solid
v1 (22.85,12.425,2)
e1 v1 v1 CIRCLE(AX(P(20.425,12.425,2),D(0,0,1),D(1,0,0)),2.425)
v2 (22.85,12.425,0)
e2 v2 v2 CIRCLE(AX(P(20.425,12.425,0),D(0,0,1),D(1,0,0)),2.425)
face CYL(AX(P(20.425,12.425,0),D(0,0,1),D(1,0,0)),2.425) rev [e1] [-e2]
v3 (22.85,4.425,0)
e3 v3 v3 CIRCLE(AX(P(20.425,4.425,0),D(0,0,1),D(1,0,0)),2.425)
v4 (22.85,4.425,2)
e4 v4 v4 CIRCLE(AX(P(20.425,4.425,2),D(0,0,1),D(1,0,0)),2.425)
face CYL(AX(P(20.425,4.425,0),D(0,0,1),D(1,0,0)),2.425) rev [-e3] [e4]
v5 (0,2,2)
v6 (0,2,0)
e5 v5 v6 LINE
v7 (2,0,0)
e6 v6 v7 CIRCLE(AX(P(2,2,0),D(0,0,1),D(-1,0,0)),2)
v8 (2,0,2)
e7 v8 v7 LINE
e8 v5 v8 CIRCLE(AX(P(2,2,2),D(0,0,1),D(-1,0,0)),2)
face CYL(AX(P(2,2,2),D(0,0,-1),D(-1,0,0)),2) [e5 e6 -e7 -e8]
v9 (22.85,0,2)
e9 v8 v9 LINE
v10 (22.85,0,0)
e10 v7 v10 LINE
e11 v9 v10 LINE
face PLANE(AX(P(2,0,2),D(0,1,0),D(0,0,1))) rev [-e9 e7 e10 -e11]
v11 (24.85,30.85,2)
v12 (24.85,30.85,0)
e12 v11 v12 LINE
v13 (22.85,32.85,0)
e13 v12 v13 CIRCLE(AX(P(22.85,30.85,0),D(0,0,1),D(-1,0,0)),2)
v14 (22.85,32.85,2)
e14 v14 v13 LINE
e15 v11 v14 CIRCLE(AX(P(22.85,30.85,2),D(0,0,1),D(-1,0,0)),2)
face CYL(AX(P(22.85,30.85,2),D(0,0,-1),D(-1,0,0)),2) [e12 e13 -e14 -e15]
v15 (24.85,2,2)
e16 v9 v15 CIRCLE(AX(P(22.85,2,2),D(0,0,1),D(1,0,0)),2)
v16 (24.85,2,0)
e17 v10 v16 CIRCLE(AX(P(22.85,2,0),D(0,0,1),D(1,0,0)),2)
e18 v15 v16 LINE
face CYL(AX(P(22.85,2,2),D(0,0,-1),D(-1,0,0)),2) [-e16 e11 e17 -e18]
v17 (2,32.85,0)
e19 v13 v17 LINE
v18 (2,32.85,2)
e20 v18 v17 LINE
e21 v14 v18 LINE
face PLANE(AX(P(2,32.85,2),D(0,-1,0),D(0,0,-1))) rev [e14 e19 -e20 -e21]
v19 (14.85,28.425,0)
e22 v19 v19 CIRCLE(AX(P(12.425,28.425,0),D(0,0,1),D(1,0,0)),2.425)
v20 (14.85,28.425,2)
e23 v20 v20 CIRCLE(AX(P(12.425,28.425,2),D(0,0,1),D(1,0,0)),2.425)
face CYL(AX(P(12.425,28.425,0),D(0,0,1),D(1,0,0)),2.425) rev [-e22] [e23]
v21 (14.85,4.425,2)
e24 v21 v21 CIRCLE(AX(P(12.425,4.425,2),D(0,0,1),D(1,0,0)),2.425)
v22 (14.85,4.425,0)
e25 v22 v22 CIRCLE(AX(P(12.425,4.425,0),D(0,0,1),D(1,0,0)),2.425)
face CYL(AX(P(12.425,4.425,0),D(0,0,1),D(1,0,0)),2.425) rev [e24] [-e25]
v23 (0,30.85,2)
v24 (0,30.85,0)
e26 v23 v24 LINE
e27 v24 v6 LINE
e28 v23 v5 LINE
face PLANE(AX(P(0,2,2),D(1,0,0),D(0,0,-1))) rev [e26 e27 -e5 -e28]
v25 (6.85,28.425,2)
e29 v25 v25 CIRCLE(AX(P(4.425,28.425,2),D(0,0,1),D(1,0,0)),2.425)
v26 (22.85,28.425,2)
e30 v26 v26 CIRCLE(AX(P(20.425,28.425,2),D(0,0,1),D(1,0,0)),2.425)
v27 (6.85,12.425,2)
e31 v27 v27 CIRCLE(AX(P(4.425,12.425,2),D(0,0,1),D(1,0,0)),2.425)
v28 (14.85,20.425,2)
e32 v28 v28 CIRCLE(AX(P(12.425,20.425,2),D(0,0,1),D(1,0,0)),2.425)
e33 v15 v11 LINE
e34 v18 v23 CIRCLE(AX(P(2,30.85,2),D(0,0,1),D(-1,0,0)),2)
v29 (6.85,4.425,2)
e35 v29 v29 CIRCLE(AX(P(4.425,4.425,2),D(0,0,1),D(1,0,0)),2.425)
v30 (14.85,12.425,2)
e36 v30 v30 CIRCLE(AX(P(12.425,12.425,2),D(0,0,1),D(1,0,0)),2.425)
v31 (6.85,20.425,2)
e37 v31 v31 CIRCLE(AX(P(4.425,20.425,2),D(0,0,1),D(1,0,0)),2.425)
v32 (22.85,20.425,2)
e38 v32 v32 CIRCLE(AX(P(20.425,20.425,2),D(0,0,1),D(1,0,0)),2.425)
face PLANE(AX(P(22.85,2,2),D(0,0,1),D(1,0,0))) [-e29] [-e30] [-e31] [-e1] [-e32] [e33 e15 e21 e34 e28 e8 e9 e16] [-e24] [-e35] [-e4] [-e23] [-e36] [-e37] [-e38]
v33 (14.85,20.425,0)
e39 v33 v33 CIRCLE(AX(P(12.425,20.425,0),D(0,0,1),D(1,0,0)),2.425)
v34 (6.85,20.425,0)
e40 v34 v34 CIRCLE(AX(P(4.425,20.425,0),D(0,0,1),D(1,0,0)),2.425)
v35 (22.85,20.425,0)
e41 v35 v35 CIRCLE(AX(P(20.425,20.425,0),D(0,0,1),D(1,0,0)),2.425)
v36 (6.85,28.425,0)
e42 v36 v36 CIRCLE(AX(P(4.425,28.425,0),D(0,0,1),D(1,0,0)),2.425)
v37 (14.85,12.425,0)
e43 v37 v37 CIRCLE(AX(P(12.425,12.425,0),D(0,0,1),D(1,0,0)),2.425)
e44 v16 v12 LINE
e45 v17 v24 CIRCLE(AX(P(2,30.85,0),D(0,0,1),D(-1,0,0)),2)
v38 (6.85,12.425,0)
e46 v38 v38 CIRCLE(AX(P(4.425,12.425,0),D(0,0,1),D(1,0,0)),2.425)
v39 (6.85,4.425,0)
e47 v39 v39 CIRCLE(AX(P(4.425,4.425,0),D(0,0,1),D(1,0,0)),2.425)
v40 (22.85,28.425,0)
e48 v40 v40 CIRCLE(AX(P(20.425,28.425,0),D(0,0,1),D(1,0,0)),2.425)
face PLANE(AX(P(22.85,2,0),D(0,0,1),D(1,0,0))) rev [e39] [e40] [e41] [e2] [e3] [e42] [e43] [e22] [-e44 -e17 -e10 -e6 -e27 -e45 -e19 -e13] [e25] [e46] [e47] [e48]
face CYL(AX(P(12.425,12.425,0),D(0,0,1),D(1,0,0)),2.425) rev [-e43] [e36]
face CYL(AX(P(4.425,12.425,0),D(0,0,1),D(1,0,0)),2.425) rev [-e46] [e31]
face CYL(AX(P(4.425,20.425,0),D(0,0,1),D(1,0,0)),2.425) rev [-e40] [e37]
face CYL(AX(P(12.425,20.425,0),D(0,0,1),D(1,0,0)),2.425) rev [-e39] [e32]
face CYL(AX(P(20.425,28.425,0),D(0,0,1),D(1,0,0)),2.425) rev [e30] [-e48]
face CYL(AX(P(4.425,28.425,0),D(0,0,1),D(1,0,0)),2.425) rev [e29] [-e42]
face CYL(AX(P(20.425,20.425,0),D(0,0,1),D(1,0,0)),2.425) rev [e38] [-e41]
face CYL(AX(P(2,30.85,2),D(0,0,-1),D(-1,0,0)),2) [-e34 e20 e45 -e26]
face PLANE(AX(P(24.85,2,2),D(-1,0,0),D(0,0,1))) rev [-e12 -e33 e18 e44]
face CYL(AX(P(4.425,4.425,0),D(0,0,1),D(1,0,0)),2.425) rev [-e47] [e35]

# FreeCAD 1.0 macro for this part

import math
import FreeCAD as App
import Part
import Sketcher

V = App.Vector

doc = App.newDocument("Part")
body = doc.addObject("PartDesign::Body", "Body")

sketch1 = doc.addObject("Sketcher::SketchObject", "Sketch")
body.addObject(sketch1)
sketch1.AttachmentSupport = (doc.XY_Plane, [""])
sketch1.MapMode = "FlatFace"
sketch1.addGeometry(Part.LineSegment(V(2, 0, 0), V(22.85, 0, 0)), False)
sketch1.addGeometry(Part.ArcOfCircle(Part.Circle(V(22.85, 2, 0), V(0, 0, 1), 2), math.radians(-90), math.radians(0)), False)
sketch1.addGeometry(Part.LineSegment(V(24.85, 2, 0), V(24.85, 30.85, 0)), False)
sketch1.addGeometry(Part.ArcOfCircle(Part.Circle(V(22.85, 30.85, 0), V(0, 0, 1), 2), math.radians(0), math.radians(90)), False)
sketch1.addGeometry(Part.LineSegment(V(22.85, 32.85, 0), V(2, 32.85, 0)), False)
sketch1.addGeometry(Part.ArcOfCircle(Part.Circle(V(2, 30.85, 0), V(0, 0, 1), 2), math.radians(90), math.radians(180)), False)
sketch1.addGeometry(Part.LineSegment(V(0, 30.85, 0), V(0, 2, 0)), False)
sketch1.addGeometry(Part.ArcOfCircle(Part.Circle(V(2, 2, 0), V(0, 0, 1), 2), math.radians(-180), math.radians(-90)), False)
sketch1.addConstraint(Sketcher.Constraint("Tangent", 0, 2, 1, 1))
sketch1.addConstraint(Sketcher.Constraint("Tangent", 1, 2, 2, 1))
sketch1.addConstraint(Sketcher.Constraint("Tangent", 2, 2, 3, 1))
sketch1.addConstraint(Sketcher.Constraint("Tangent", 3, 2, 4, 1))
sketch1.addConstraint(Sketcher.Constraint("Tangent", 4, 2, 5, 1))
sketch1.addConstraint(Sketcher.Constraint("Tangent", 5, 2, 6, 1))
sketch1.addConstraint(Sketcher.Constraint("Tangent", 6, 2, 7, 1))
sketch1.addConstraint(Sketcher.Constraint("Tangent", 7, 2, 0, 1))
sketch1.addConstraint(Sketcher.Constraint("Horizontal", 0))
sketch1.addConstraint(Sketcher.Constraint("Vertical", 2))
sketch1.addConstraint(Sketcher.Constraint("Horizontal", 4))
sketch1.addConstraint(Sketcher.Constraint("Vertical", 6))
sketch1.addConstraint(Sketcher.Constraint("Equal", 1, 3))
sketch1.addConstraint(Sketcher.Constraint("Equal", 3, 5))
sketch1.addConstraint(Sketcher.Constraint("Equal", 5, 7))
sketch1.addConstraint(Sketcher.Constraint("PointOnObject", 0, 2, -1))
sketch1.addConstraint(Sketcher.Constraint("PointOnObject", 5, 2, -2))
sketch1.addConstraint(Sketcher.Constraint("Radius", 1, 2.0))
sketch1.addConstraint(Sketcher.Constraint("DistanceX", 0, 1, 0, 2, 20.85))
sketch1.addConstraint(Sketcher.Constraint("DistanceY", 2, 1, 2, 2, 28.85))
pad1 = doc.addObject("PartDesign::Pad", "Pad")
body.addObject(pad1)
pad1.Profile = sketch1
pad1.Length = 2

sketch2 = doc.addObject("Sketcher::SketchObject", "Sketch001")
body.addObject(sketch2)
sketch2.AttachmentSupport = (doc.XY_Plane, [""])
sketch2.MapMode = "FlatFace"
sketch2.AttachmentOffset = App.Placement(V(0, 0, 2), App.Rotation())
sketch2.addGeometry(Part.Circle(V(4.425, 4.425, 0), V(0, 0, 1), 2.425), False)
sketch2.addGeometry(Part.Circle(V(12.425, 4.425, 0), V(0, 0, 1), 2.425), False)
sketch2.addGeometry(Part.Circle(V(20.425, 4.425, 0), V(0, 0, 1), 2.425), False)
sketch2.addGeometry(Part.Circle(V(4.425, 12.425, 0), V(0, 0, 1), 2.425), False)
sketch2.addGeometry(Part.Circle(V(12.425, 12.425, 0), V(0, 0, 1), 2.425), False)
sketch2.addGeometry(Part.Circle(V(20.425, 12.425, 0), V(0, 0, 1), 2.425), False)
sketch2.addGeometry(Part.Circle(V(4.425, 20.425, 0), V(0, 0, 1), 2.425), False)
sketch2.addGeometry(Part.Circle(V(12.425, 20.425, 0), V(0, 0, 1), 2.425), False)
sketch2.addGeometry(Part.Circle(V(20.425, 20.425, 0), V(0, 0, 1), 2.425), False)
sketch2.addGeometry(Part.Circle(V(4.425, 28.425, 0), V(0, 0, 1), 2.425), False)
sketch2.addGeometry(Part.Circle(V(12.425, 28.425, 0), V(0, 0, 1), 2.425), False)
sketch2.addGeometry(Part.Circle(V(20.425, 28.425, 0), V(0, 0, 1), 2.425), False)
sketch2.addConstraint(Sketcher.Constraint("Equal", 0, 1))
sketch2.addConstraint(Sketcher.Constraint("Equal", 1, 2))
sketch2.addConstraint(Sketcher.Constraint("Equal", 2, 3))
sketch2.addConstraint(Sketcher.Constraint("Equal", 3, 4))
sketch2.addConstraint(Sketcher.Constraint("Equal", 4, 5))
sketch2.addConstraint(Sketcher.Constraint("Equal", 5, 6))
sketch2.addConstraint(Sketcher.Constraint("Equal", 6, 7))
sketch2.addConstraint(Sketcher.Constraint("Equal", 7, 8))
sketch2.addConstraint(Sketcher.Constraint("Equal", 8, 9))
sketch2.addConstraint(Sketcher.Constraint("Equal", 9, 10))
sketch2.addConstraint(Sketcher.Constraint("Equal", 10, 11))
sketch2.addConstraint(Sketcher.Constraint("Horizontal", 0, 3, 1, 3))
sketch2.addConstraint(Sketcher.Constraint("Horizontal", 1, 3, 2, 3))
sketch2.addConstraint(Sketcher.Constraint("Horizontal", 3, 3, 4, 3))
sketch2.addConstraint(Sketcher.Constraint("Horizontal", 4, 3, 5, 3))
sketch2.addConstraint(Sketcher.Constraint("Horizontal", 6, 3, 7, 3))
sketch2.addConstraint(Sketcher.Constraint("Horizontal", 7, 3, 8, 3))
sketch2.addConstraint(Sketcher.Constraint("Horizontal", 9, 3, 10, 3))
sketch2.addConstraint(Sketcher.Constraint("Horizontal", 10, 3, 11, 3))
sketch2.addConstraint(Sketcher.Constraint("Vertical", 0, 3, 3, 3))
sketch2.addConstraint(Sketcher.Constraint("Vertical", 1, 3, 4, 3))
sketch2.addConstraint(Sketcher.Constraint("Vertical", 2, 3, 5, 3))
sketch2.addConstraint(Sketcher.Constraint("Vertical", 3, 3, 6, 3))
sketch2.addConstraint(Sketcher.Constraint("Vertical", 4, 3, 7, 3))
sketch2.addConstraint(Sketcher.Constraint("Vertical", 5, 3, 8, 3))
sketch2.addConstraint(Sketcher.Constraint("Vertical", 6, 3, 9, 3))
sketch2.addConstraint(Sketcher.Constraint("Vertical", 7, 3, 10, 3))
sketch2.addConstraint(Sketcher.Constraint("Vertical", 8, 3, 11, 3))
sketch2.addConstraint(Sketcher.Constraint("Diameter", 0, 4.85))
sketch2.addConstraint(Sketcher.Constraint("DistanceX", 0, 3, 1, 3, 8.0))
sketch2.addConstraint(Sketcher.Constraint("DistanceX", 1, 3, 2, 3, 8.0))
sketch2.addConstraint(Sketcher.Constraint("DistanceY", 0, 3, 3, 3, 8.0))
sketch2.addConstraint(Sketcher.Constraint("DistanceY", 3, 3, 6, 3, 8.0))
sketch2.addConstraint(Sketcher.Constraint("DistanceY", 6, 3, 9, 3, 8.0))
sketch2.addConstraint(Sketcher.Constraint("DistanceX", -1, 1, 0, 3, 4.425))
sketch2.addConstraint(Sketcher.Constraint("DistanceY", -1, 1, 0, 3, 4.425))
pocket1 = doc.addObject("PartDesign::Pocket", "Pocket")
body.addObject(pocket1)
pocket1.Profile = sketch2
pocket1.Length = 2

doc.recompute()
